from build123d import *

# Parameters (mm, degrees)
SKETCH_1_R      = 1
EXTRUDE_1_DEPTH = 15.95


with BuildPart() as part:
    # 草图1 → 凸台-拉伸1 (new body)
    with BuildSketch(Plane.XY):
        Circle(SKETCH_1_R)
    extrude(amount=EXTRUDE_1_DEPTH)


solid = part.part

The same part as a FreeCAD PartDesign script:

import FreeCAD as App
import Part
import Sketcher
Q = App.Units.Quantity

doc = App.newDocument("Part")
body = doc.addObject("PartDesign::Body", "Body")

sketch1 = body.newObject("Sketcher::SketchObject", "Sketch")
sketch1.AttachmentSupport = (doc.getObject("XY_Plane"), [""])
sketch1.MapMode = "FlatFace"
sketch1.addGeometry(Part.Circle(App.Vector(0, 0, 0), App.Vector(0, 0, 1), 1), False)
sketch1.addConstraint([
    Sketcher.Constraint("Coincident", 0, 3, -1, 1),
    Sketcher.Constraint("Diameter", 0, Q("2 mm")),
])
pad1 = body.newObject("PartDesign::Pad", "Pad")
pad1.Profile = sketch1
pad1.Length = 15.95

doc.recompute()
